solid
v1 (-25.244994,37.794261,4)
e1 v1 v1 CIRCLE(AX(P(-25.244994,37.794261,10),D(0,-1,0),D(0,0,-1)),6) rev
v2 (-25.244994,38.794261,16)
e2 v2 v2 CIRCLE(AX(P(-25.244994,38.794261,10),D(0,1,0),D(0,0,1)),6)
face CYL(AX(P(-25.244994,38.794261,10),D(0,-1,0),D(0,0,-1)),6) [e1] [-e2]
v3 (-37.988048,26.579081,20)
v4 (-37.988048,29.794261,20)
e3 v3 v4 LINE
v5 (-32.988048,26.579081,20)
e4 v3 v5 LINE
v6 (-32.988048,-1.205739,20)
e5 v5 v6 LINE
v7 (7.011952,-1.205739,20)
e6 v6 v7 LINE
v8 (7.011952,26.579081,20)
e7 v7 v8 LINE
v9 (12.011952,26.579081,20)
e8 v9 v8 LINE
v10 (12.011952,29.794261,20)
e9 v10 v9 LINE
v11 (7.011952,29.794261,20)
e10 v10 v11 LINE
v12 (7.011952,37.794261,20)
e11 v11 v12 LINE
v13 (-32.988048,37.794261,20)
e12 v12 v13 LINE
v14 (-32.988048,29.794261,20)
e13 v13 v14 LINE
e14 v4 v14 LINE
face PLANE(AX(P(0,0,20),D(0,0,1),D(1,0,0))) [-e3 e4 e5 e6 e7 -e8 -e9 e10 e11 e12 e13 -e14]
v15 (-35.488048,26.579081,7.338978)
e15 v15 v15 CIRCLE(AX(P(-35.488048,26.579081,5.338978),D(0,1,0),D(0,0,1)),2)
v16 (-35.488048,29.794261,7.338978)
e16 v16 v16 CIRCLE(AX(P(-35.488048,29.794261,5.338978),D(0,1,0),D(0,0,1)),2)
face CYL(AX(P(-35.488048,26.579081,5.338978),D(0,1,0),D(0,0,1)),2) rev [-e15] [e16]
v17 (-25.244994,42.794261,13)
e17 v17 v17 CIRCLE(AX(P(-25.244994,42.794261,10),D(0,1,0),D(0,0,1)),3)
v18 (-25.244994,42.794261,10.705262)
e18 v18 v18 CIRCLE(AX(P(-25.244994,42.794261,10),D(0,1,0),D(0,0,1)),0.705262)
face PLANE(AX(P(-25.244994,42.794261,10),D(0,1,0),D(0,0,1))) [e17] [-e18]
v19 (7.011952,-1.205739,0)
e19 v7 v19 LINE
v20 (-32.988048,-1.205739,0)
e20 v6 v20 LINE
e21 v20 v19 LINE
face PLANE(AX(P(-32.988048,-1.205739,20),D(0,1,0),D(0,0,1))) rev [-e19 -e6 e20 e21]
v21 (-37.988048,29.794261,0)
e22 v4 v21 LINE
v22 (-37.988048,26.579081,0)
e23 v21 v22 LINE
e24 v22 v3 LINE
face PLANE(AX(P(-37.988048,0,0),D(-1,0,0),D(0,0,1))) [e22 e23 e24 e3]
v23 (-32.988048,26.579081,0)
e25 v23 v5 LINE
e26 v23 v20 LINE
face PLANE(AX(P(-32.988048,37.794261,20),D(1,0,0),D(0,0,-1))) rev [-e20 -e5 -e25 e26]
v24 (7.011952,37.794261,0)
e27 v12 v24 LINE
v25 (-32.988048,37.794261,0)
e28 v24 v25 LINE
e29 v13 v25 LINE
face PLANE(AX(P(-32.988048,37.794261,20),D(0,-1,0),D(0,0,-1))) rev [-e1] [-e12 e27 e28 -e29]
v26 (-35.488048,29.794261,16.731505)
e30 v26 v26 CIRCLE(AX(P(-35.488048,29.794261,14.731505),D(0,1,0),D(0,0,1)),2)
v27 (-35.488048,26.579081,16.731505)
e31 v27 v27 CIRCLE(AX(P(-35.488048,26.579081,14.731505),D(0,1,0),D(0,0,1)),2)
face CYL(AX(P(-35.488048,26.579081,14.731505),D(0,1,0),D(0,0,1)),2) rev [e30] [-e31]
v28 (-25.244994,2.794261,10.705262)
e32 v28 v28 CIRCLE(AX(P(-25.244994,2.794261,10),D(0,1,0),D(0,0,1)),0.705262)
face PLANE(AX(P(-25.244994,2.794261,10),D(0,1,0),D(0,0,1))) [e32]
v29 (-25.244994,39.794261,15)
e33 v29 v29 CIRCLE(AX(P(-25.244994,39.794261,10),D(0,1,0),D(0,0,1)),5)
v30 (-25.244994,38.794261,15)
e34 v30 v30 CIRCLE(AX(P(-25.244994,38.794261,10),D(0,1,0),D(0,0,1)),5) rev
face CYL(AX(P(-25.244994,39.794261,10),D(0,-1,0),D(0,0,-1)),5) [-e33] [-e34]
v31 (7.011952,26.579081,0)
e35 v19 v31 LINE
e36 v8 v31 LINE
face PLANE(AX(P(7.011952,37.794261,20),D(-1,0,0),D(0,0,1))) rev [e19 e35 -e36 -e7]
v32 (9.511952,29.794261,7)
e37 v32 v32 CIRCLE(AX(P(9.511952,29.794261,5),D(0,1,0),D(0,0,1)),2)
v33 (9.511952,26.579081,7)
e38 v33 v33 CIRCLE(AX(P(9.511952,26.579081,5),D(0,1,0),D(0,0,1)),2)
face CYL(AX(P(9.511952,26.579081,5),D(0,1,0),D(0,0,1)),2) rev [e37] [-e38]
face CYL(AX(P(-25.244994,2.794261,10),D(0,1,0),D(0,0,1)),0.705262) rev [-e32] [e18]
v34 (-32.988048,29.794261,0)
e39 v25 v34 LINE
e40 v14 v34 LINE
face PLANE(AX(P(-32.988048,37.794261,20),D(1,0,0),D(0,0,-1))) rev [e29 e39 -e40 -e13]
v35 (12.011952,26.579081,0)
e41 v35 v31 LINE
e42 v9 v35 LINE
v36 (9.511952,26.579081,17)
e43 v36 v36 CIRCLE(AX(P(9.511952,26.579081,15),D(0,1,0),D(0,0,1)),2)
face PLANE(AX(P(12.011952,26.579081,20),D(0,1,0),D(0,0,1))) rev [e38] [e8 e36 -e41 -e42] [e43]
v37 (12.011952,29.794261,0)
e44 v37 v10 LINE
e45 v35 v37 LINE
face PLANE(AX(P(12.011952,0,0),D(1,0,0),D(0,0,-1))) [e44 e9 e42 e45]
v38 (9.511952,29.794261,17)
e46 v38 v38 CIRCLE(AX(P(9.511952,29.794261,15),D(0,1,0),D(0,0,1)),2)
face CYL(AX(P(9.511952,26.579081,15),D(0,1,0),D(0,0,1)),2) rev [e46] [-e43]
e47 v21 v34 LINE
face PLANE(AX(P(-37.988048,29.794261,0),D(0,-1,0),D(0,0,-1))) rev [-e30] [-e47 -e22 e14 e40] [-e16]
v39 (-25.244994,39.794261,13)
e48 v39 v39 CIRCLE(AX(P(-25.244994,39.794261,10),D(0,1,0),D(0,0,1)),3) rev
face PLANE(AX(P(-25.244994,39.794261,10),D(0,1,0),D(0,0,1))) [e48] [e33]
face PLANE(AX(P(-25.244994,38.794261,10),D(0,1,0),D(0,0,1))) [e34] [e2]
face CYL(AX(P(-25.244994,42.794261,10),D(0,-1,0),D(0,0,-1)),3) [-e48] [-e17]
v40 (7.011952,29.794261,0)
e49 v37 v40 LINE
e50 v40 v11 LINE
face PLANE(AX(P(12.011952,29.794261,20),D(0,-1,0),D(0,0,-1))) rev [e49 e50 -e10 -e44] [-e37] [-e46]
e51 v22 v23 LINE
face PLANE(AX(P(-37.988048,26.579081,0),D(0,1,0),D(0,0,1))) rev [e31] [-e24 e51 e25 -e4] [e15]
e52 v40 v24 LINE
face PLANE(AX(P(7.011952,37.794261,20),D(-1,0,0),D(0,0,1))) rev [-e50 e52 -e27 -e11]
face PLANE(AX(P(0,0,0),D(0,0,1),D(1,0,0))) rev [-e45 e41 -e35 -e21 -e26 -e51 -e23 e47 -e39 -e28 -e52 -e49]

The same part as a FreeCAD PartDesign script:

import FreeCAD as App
import Part
import Sketcher
Q = App.Units.Quantity

doc = App.newDocument("Part")
body = doc.addObject("PartDesign::Body", "Body")

sketch1 = body.newObject("Sketcher::SketchObject", "Sketch")
sketch1.AttachmentSupport = (doc.getObject("XY_Plane"), [""])
sketch1.MapMode = "FlatFace"
sketch1.addGeometry([
    Part.LineSegment(App.Vector(-32.988048, 37.794261, 0), App.Vector(-32.988048, -1.205739, 0)),
    Part.LineSegment(App.Vector(-32.988048, -1.205739, 0), App.Vector(7.011952, -1.205739, 0)),
    Part.LineSegment(App.Vector(7.011952, -1.205739, 0), App.Vector(7.011952, 37.794261, 0)),
    Part.LineSegment(App.Vector(7.011952, 37.794261, 0), App.Vector(-32.988048, 37.794261, 0)),
], False)
sketch1.addConstraint([
    Sketcher.Constraint("Coincident", 0, 2, 1, 1),
    Sketcher.Constraint("Coincident", 1, 2, 2, 1),
    Sketcher.Constraint("Coincident", 2, 2, 3, 1),
    Sketcher.Constraint("Coincident", 3, 2, 0, 1),
    Sketcher.Constraint("Vertical", 0),
    Sketcher.Constraint("Horizontal", 1),
    Sketcher.Constraint("Vertical", 2),
    Sketcher.Constraint("Horizontal", 3),
    Sketcher.Constraint("DistanceX", 1, 1, 1, 2, Q("40 mm")),
    Sketcher.Constraint("DistanceY", 0, 2, 0, 1, Q("39 mm")),
    Sketcher.Constraint("DistanceY", 0, 2, -1, 1, Q("1.205739 mm")),
    Sketcher.Constraint("DistanceX", 0, 2, -1, 1, Q("32.988048 mm")),
])
pad1 = body.newObject("PartDesign::Pad", "Pad")
pad1.Profile = sketch1
pad1.Length = 20

sketch2 = body.newObject("Sketcher::SketchObject", "Sketch001")
sketch2.AttachmentSupport = (doc.getObject("YZ_Plane"), [""])
sketch2.MapMode = "FlatFace"
sketch2.AttachmentOffset = App.Placement(App.Vector(0, 0, -32.988048), App.Rotation())
sketch2.addGeometry([
    Part.LineSegment(App.Vector(29.794261, 0, 0), App.Vector(26.579081, 0, 0)),
    Part.LineSegment(App.Vector(26.579081, 0, 0), App.Vector(26.579081, 20, 0)),
    Part.LineSegment(App.Vector(26.579081, 20, 0), App.Vector(29.794261, 20, 0)),
    Part.LineSegment(App.Vector(29.794261, 20, 0), App.Vector(29.794261, 0, 0)),
], False)
sketch2.addConstraint([
    Sketcher.Constraint("Coincident", 0, 2, 1, 1),
    Sketcher.Constraint("Coincident", 1, 2, 2, 1),
    Sketcher.Constraint("Coincident", 2, 2, 3, 1),
    Sketcher.Constraint("Coincident", 3, 2, 0, 1),
    Sketcher.Constraint("Horizontal", 0),
    Sketcher.Constraint("Vertical", 1),
    Sketcher.Constraint("Horizontal", 2),
    Sketcher.Constraint("Vertical", 3),
    Sketcher.Constraint("PointOnObject", 0, 2, -1),
    Sketcher.Constraint("DistanceY", 1, 1, 1, 2, Q("20 mm")),
    Sketcher.Constraint("DistanceX", 0, 2, 0, 1, Q("3.21518 mm")),
    Sketcher.Constraint("DistanceX", -1, 1, 0, 2, Q("26.579081 mm")),
])
pad2 = body.newObject("PartDesign::Pad", "Pad001")
pad2.Profile = sketch2
pad2.Length = 5
pad2.Reversed = True

sketch3 = body.newObject("Sketcher::SketchObject", "Sketch002")
sketch3.AttachmentSupport = (doc.getObject("YZ_Plane"), [""])
sketch3.MapMode = "FlatFace"
sketch3.AttachmentOffset = App.Placement(App.Vector(0, 0, 7.011952), App.Rotation())
sketch3.addGeometry([
    Part.LineSegment(App.Vector(29.794261, 20, 0), App.Vector(26.579081, 20, 0)),
    Part.LineSegment(App.Vector(26.579081, 20, 0), App.Vector(26.579081, 0, 0)),
    Part.LineSegment(App.Vector(26.579081, 0, 0), App.Vector(29.794261, 0, 0)),
    Part.LineSegment(App.Vector(29.794261, 0, 0), App.Vector(29.794261, 20, 0)),
], False)
sketch3.addConstraint([
    Sketcher.Constraint("Coincident", 0, 2, 1, 1),
    Sketcher.Constraint("Coincident", 1, 2, 2, 1),
    Sketcher.Constraint("Coincident", 2, 2, 3, 1),
    Sketcher.Constraint("Coincident", 3, 2, 0, 1),
    Sketcher.Constraint("Horizontal", 0),
    Sketcher.Constraint("Vertical", 1),
    Sketcher.Constraint("Horizontal", 2),
    Sketcher.Constraint("Vertical", 3),
    Sketcher.Constraint("PointOnObject", 1, 2, -1),
    Sketcher.Constraint("DistanceY", 1, 2, 1, 1, Q("20 mm")),
    Sketcher.Constraint("DistanceX", 0, 2, 0, 1, Q("3.21518 mm")),
    Sketcher.Constraint("DistanceX", -1, 1, 0, 2, Q("26.579081 mm")),
])
pad3 = body.newObject("PartDesign::Pad", "Pad002")
pad3.Profile = sketch3
pad3.Length = 5

sketch4 = body.newObject("Sketcher::SketchObject", "Sketch003")
sketch4.AttachmentSupport = (doc.getObject("XZ_Plane"), [""])
sketch4.MapMode = "FlatFace"
sketch4.AttachmentOffset = App.Placement(App.Vector(0, 0, -29.794261), App.Rotation())
sketch4.addGeometry([
    Part.Circle(App.Vector(-35.488048, 5.338978, 0), App.Vector(0, 0, 1), 2),
    Part.Circle(App.Vector(-35.488048, 14.731505, 0), App.Vector(0, 0, 1), 2),
], False)
sketch4.addConstraint([
    Sketcher.Constraint("Equal", 0, 1),
    Sketcher.Constraint("Vertical", 0, 3, 1, 3),
    Sketcher.Constraint("Diameter", 0, Q("4 mm")),
    Sketcher.Constraint("DistanceY", -1, 1, 0, 3, Q("5.338978 mm")),
    Sketcher.Constraint("DistanceX", 0, 3, -1, 1, Q("35.488048 mm")),
    Sketcher.Constraint("DistanceY", -1, 1, 1, 3, Q("14.731505 mm")),
])
pocket1 = body.newObject("PartDesign::Pocket", "Pocket")
pocket1.Profile = sketch4
pocket1.Length = 3.21518
pocket1.Reversed = True

sketch5 = body.newObject("Sketcher::SketchObject", "Sketch004")
sketch5.AttachmentSupport = (doc.getObject("XZ_Plane"), [""])
sketch5.MapMode = "FlatFace"
sketch5.AttachmentOffset = App.Placement(App.Vector(0, 0, -29.794261), App.Rotation())
sketch5.addGeometry([
    Part.Circle(App.Vector(9.511952, 5, 0), App.Vector(0, 0, 1), 2),
    Part.Circle(App.Vector(9.511952, 15, 0), App.Vector(0, 0, 1), 2),
], False)
sketch5.addConstraint([
    Sketcher.Constraint("Equal", 0, 1),
    Sketcher.Constraint("Vertical", 0, 3, 1, 3),
    Sketcher.Constraint("Diameter", 0, Q("4 mm")),
    Sketcher.Constraint("DistanceY", -1, 1, 0, 3, Q("5 mm")),
    Sketcher.Constraint("DistanceY", -1, 1, 1, 3, Q("15 mm")),
    Sketcher.Constraint("DistanceX", -1, 1, 0, 3, Q("9.511952 mm")),
])
pocket2 = body.newObject("PartDesign::Pocket", "Pocket001")
pocket2.Profile = sketch5
pocket2.Length = 3.21518
pocket2.Reversed = True

sketch6 = body.newObject("Sketcher::SketchObject", "Sketch005")
sketch6.AttachmentSupport = (doc.getObject("XZ_Plane"), [""])
sketch6.MapMode = "FlatFace"
sketch6.AttachmentOffset = App.Placement(App.Vector(0, 0, -37.794261), App.Rotation())
sketch6.addGeometry(Part.Circle(App.Vector(-25.244994, 10, 0), App.Vector(0, 0, 1), 6), False)
sketch6.addConstraint([
    Sketcher.Constraint("Diameter", 0, Q("12 mm")),
    Sketcher.Constraint("DistanceY", -1, 1, 0, 3, Q("10 mm")),
    Sketcher.Constraint("DistanceX", 0, 3, -1, 1, Q("25.244994 mm")),
])
pad4 = body.newObject("PartDesign::Pad", "Pad003")
pad4.Profile = sketch6
pad4.Type = "TwoLengths"
pad4.Length = 1
pad4.Length2 = 39
pad4.Reversed = True

sketch7 = body.newObject("Sketcher::SketchObject", "Sketch006")
sketch7.AttachmentSupport = (doc.getObject("XZ_Plane"), [""])
sketch7.MapMode = "FlatFace"
sketch7.AttachmentOffset = App.Placement(App.Vector(0, 0, -38.794261), App.Rotation())
sketch7.addGeometry(Part.Circle(App.Vector(-25.244994, 10, 0), App.Vector(0, 0, 1), 5), False)
sketch7.addConstraint([
    Sketcher.Constraint("Diameter", 0, Q("10 mm")),
    Sketcher.Constraint("DistanceY", -1, 1, 0, 3, Q("10 mm")),
    Sketcher.Constraint("DistanceX", 0, 3, -1, 1, Q("25.244994 mm")),
])
pad5 = body.newObject("PartDesign::Pad", "Pad004")
pad5.Profile = sketch7
pad5.Type = "TwoLengths"
pad5.Length = 1
pad5.Length2 = 40
pad5.Reversed = True

sketch8 = body.newObject("Sketcher::SketchObject", "Sketch007")
sketch8.AttachmentSupport = (doc.getObject("XZ_Plane"), [""])
sketch8.MapMode = "FlatFace"
sketch8.AttachmentOffset = App.Placement(App.Vector(0, 0, -39.794261), App.Rotation())
sketch8.addGeometry(Part.Circle(App.Vector(-25.244994, 10, 0), App.Vector(0, 0, 1), 3), False)
sketch8.addConstraint([
    Sketcher.Constraint("Diameter", 0, Q("6 mm")),
    Sketcher.Constraint("DistanceY", -1, 1, 0, 3, Q("10 mm")),
    Sketcher.Constraint("DistanceX", 0, 3, -1, 1, Q("25.244994 mm")),
])
pad6 = body.newObject("PartDesign::Pad", "Pad005")
pad6.Profile = sketch8
pad6.Type = "TwoLengths"
pad6.Length = 3
pad6.Length2 = 41
pad6.Reversed = True

sketch9 = body.newObject("Sketcher::SketchObject", "Sketch008")
sketch9.AttachmentSupport = (doc.getObject("XZ_Plane"), [""])
sketch9.MapMode = "FlatFace"
sketch9.AttachmentOffset = App.Placement(App.Vector(0, 0, -42.794261), App.Rotation())
sketch9.addGeometry(Part.Circle(App.Vector(-25.244994, 10, 0), App.Vector(0, 0, 1), 0.705262), False)
sketch9.addConstraint([
    Sketcher.Constraint("DistanceY", -1, 1, 0, 3, Q("10 mm")),
    Sketcher.Constraint("Diameter", 0, Q("1.410525 mm")),
    Sketcher.Constraint("DistanceX", 0, 3, -1, 1, Q("25.244994 mm")),
])
pocket3 = body.newObject("PartDesign::Pocket", "Pocket002")
pocket3.Profile = sketch9
pocket3.Length = 40
pocket3.Reversed = True

doc.recompute()
